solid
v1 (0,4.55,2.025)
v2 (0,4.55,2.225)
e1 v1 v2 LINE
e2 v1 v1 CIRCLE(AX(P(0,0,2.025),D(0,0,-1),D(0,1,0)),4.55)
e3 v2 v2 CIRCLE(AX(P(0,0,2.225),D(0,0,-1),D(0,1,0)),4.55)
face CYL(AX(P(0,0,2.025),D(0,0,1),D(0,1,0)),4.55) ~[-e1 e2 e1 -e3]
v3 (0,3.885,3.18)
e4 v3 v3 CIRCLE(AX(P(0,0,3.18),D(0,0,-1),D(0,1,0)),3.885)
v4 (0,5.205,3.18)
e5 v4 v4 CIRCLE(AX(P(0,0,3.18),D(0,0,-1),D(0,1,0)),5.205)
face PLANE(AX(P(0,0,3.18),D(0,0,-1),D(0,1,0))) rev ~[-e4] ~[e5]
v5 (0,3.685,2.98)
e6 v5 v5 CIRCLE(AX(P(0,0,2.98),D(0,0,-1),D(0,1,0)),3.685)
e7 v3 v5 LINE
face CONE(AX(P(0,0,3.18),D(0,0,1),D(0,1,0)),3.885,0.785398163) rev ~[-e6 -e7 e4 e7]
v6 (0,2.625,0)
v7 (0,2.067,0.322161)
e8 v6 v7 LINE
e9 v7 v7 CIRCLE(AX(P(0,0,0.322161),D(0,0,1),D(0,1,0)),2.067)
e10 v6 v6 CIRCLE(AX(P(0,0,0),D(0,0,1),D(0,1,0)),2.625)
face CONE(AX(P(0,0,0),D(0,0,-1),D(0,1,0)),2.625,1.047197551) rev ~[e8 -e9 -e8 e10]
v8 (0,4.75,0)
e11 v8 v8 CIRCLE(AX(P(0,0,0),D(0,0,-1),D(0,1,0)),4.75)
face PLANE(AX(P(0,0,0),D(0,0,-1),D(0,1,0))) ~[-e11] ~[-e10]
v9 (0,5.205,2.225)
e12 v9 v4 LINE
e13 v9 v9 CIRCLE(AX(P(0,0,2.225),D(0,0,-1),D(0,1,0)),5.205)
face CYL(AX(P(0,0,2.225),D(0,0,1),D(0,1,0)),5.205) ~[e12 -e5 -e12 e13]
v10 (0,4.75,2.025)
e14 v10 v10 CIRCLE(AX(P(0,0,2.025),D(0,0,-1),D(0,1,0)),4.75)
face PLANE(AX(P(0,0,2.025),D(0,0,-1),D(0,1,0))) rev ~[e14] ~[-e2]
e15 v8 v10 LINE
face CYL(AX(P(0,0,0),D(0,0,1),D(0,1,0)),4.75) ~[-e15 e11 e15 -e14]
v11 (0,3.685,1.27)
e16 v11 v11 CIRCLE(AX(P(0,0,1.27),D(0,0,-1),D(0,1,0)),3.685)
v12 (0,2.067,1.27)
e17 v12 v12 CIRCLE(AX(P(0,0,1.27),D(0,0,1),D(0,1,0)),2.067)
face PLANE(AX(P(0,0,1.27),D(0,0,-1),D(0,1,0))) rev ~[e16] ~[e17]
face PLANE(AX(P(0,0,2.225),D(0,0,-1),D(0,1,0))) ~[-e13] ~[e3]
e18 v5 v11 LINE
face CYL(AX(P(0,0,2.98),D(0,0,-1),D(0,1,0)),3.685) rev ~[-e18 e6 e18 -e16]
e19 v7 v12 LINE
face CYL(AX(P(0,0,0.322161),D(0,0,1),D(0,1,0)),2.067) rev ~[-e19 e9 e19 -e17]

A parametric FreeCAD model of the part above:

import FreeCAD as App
import Part
import Sketcher
from FreeCAD import Vector
Q = App.Units.Quantity


def add_polygon(sketch, points):
    """Adds a closed chain of lines whose ends are joined by coincident constraints."""
    first, n = sketch.GeometryCount, len(points)
    for a, b in zip(points, points[1:] + points[:1]):
        sketch.addGeometry(Part.LineSegment(App.Vector(*a, 0), App.Vector(*b, 0)), False)
    for i in range(n):
        sketch.addConstraint(Sketcher.Constraint("Coincident", first + i, 2, first + (i + 1) % n, 1))

doc = App.newDocument("Part")
body = doc.addObject("PartDesign::Body", "Body")

sketch1 = body.newObject("Sketcher::SketchObject", "Sketch")
sketch1.AttachmentSupport = (doc.getObject("YZ_Plane"), [""])
sketch1.MapMode = "FlatFace"
add_polygon(sketch1, [(0, 1.27), (0, 0), (4.75, 0), (4.75, 2.02), (4.55, 2.02), (4.55, 2.23), (5.21, 2.23), (5.21, 3.18), (3.88, 3.18), (3.69, 2.98), (3.69, 1.27)])
sketch1.addConstraint([
    Sketcher.Constraint("Vertical", 0),
    Sketcher.Constraint("Horizontal", 1),
    Sketcher.Constraint("Vertical", 2),
    Sketcher.Constraint("Horizontal", 3),
    Sketcher.Constraint("Vertical", 4),
    Sketcher.Constraint("Horizontal", 5),
    Sketcher.Constraint("Vertical", 6),
    Sketcher.Constraint("Horizontal", 7),
    Sketcher.Constraint("Vertical", 9),
    Sketcher.Constraint("Horizontal", 10),
    Sketcher.Constraint("Coincident", 0, 2, -1, 1),
    Sketcher.Constraint("Equal", 3, 4),
    Sketcher.Constraint("DistanceY", 6, 1, 6, 2, Q("0.0376 in")),
    Sketcher.Constraint("Angle", 8, Q("-135 deg")),
    Sketcher.Constraint("DistanceX", 3, 2, 3, 1, 0.2),
    Sketcher.Constraint("DistanceY", 0, 2, 0, 1, Q("0.05 in")),
    Sketcher.Constraint("DistanceY", -1, 1, 6, 2, Q("0.1252 in")),
    Sketcher.Constraint("DistanceY", 3, 2, 8, 2, Q("0.0376 in")),
    Sketcher.Constraint("DistanceX", 1, 1, 1, 2, Q("0.187 in")),
    Sketcher.Constraint("DistanceX", 5, 1, 5, 2, 0.655),
    Sketcher.Constraint("DistanceX", 7, 2, 7, 1, 1.32),
])
revolution = body.newObject("PartDesign::Revolution", "Revolution")
revolution.Profile = sketch1
revolution.ReferenceAxis = (sketch1, ["V_Axis"])
revolution.Angle = 360

sketch2 = body.newObject("Sketcher::SketchObject", "Sketch001")
sketch2.AttachmentSupport = (doc.getObject("XY_Plane"), [""])
sketch2.MapMode = "FlatFace"
sketch2.addGeometry(Part.Circle(Vector(0, 0, 0), Vector(0, 0, 1), 2.1), False)
sketch2.addConstraint([
    Sketcher.Constraint("Coincident", 0, 3, -1, 1),
    Sketcher.Constraint("Diameter", 0, 4.134),
])
doc.recompute()
hole = body.newObject("PartDesign::Hole", "Hole")
hole.Profile = sketch2
hole.ThreadType = "None"
hole.Diameter = 4.134
hole.DepthType = "ThroughAll"
hole.HoleCutType = "Countersink"
hole.HoleCutDiameter = Q("0.2066929 in")
hole.HoleCutCountersinkAngle = 120
hole.Reversed = True

doc.recompute()
